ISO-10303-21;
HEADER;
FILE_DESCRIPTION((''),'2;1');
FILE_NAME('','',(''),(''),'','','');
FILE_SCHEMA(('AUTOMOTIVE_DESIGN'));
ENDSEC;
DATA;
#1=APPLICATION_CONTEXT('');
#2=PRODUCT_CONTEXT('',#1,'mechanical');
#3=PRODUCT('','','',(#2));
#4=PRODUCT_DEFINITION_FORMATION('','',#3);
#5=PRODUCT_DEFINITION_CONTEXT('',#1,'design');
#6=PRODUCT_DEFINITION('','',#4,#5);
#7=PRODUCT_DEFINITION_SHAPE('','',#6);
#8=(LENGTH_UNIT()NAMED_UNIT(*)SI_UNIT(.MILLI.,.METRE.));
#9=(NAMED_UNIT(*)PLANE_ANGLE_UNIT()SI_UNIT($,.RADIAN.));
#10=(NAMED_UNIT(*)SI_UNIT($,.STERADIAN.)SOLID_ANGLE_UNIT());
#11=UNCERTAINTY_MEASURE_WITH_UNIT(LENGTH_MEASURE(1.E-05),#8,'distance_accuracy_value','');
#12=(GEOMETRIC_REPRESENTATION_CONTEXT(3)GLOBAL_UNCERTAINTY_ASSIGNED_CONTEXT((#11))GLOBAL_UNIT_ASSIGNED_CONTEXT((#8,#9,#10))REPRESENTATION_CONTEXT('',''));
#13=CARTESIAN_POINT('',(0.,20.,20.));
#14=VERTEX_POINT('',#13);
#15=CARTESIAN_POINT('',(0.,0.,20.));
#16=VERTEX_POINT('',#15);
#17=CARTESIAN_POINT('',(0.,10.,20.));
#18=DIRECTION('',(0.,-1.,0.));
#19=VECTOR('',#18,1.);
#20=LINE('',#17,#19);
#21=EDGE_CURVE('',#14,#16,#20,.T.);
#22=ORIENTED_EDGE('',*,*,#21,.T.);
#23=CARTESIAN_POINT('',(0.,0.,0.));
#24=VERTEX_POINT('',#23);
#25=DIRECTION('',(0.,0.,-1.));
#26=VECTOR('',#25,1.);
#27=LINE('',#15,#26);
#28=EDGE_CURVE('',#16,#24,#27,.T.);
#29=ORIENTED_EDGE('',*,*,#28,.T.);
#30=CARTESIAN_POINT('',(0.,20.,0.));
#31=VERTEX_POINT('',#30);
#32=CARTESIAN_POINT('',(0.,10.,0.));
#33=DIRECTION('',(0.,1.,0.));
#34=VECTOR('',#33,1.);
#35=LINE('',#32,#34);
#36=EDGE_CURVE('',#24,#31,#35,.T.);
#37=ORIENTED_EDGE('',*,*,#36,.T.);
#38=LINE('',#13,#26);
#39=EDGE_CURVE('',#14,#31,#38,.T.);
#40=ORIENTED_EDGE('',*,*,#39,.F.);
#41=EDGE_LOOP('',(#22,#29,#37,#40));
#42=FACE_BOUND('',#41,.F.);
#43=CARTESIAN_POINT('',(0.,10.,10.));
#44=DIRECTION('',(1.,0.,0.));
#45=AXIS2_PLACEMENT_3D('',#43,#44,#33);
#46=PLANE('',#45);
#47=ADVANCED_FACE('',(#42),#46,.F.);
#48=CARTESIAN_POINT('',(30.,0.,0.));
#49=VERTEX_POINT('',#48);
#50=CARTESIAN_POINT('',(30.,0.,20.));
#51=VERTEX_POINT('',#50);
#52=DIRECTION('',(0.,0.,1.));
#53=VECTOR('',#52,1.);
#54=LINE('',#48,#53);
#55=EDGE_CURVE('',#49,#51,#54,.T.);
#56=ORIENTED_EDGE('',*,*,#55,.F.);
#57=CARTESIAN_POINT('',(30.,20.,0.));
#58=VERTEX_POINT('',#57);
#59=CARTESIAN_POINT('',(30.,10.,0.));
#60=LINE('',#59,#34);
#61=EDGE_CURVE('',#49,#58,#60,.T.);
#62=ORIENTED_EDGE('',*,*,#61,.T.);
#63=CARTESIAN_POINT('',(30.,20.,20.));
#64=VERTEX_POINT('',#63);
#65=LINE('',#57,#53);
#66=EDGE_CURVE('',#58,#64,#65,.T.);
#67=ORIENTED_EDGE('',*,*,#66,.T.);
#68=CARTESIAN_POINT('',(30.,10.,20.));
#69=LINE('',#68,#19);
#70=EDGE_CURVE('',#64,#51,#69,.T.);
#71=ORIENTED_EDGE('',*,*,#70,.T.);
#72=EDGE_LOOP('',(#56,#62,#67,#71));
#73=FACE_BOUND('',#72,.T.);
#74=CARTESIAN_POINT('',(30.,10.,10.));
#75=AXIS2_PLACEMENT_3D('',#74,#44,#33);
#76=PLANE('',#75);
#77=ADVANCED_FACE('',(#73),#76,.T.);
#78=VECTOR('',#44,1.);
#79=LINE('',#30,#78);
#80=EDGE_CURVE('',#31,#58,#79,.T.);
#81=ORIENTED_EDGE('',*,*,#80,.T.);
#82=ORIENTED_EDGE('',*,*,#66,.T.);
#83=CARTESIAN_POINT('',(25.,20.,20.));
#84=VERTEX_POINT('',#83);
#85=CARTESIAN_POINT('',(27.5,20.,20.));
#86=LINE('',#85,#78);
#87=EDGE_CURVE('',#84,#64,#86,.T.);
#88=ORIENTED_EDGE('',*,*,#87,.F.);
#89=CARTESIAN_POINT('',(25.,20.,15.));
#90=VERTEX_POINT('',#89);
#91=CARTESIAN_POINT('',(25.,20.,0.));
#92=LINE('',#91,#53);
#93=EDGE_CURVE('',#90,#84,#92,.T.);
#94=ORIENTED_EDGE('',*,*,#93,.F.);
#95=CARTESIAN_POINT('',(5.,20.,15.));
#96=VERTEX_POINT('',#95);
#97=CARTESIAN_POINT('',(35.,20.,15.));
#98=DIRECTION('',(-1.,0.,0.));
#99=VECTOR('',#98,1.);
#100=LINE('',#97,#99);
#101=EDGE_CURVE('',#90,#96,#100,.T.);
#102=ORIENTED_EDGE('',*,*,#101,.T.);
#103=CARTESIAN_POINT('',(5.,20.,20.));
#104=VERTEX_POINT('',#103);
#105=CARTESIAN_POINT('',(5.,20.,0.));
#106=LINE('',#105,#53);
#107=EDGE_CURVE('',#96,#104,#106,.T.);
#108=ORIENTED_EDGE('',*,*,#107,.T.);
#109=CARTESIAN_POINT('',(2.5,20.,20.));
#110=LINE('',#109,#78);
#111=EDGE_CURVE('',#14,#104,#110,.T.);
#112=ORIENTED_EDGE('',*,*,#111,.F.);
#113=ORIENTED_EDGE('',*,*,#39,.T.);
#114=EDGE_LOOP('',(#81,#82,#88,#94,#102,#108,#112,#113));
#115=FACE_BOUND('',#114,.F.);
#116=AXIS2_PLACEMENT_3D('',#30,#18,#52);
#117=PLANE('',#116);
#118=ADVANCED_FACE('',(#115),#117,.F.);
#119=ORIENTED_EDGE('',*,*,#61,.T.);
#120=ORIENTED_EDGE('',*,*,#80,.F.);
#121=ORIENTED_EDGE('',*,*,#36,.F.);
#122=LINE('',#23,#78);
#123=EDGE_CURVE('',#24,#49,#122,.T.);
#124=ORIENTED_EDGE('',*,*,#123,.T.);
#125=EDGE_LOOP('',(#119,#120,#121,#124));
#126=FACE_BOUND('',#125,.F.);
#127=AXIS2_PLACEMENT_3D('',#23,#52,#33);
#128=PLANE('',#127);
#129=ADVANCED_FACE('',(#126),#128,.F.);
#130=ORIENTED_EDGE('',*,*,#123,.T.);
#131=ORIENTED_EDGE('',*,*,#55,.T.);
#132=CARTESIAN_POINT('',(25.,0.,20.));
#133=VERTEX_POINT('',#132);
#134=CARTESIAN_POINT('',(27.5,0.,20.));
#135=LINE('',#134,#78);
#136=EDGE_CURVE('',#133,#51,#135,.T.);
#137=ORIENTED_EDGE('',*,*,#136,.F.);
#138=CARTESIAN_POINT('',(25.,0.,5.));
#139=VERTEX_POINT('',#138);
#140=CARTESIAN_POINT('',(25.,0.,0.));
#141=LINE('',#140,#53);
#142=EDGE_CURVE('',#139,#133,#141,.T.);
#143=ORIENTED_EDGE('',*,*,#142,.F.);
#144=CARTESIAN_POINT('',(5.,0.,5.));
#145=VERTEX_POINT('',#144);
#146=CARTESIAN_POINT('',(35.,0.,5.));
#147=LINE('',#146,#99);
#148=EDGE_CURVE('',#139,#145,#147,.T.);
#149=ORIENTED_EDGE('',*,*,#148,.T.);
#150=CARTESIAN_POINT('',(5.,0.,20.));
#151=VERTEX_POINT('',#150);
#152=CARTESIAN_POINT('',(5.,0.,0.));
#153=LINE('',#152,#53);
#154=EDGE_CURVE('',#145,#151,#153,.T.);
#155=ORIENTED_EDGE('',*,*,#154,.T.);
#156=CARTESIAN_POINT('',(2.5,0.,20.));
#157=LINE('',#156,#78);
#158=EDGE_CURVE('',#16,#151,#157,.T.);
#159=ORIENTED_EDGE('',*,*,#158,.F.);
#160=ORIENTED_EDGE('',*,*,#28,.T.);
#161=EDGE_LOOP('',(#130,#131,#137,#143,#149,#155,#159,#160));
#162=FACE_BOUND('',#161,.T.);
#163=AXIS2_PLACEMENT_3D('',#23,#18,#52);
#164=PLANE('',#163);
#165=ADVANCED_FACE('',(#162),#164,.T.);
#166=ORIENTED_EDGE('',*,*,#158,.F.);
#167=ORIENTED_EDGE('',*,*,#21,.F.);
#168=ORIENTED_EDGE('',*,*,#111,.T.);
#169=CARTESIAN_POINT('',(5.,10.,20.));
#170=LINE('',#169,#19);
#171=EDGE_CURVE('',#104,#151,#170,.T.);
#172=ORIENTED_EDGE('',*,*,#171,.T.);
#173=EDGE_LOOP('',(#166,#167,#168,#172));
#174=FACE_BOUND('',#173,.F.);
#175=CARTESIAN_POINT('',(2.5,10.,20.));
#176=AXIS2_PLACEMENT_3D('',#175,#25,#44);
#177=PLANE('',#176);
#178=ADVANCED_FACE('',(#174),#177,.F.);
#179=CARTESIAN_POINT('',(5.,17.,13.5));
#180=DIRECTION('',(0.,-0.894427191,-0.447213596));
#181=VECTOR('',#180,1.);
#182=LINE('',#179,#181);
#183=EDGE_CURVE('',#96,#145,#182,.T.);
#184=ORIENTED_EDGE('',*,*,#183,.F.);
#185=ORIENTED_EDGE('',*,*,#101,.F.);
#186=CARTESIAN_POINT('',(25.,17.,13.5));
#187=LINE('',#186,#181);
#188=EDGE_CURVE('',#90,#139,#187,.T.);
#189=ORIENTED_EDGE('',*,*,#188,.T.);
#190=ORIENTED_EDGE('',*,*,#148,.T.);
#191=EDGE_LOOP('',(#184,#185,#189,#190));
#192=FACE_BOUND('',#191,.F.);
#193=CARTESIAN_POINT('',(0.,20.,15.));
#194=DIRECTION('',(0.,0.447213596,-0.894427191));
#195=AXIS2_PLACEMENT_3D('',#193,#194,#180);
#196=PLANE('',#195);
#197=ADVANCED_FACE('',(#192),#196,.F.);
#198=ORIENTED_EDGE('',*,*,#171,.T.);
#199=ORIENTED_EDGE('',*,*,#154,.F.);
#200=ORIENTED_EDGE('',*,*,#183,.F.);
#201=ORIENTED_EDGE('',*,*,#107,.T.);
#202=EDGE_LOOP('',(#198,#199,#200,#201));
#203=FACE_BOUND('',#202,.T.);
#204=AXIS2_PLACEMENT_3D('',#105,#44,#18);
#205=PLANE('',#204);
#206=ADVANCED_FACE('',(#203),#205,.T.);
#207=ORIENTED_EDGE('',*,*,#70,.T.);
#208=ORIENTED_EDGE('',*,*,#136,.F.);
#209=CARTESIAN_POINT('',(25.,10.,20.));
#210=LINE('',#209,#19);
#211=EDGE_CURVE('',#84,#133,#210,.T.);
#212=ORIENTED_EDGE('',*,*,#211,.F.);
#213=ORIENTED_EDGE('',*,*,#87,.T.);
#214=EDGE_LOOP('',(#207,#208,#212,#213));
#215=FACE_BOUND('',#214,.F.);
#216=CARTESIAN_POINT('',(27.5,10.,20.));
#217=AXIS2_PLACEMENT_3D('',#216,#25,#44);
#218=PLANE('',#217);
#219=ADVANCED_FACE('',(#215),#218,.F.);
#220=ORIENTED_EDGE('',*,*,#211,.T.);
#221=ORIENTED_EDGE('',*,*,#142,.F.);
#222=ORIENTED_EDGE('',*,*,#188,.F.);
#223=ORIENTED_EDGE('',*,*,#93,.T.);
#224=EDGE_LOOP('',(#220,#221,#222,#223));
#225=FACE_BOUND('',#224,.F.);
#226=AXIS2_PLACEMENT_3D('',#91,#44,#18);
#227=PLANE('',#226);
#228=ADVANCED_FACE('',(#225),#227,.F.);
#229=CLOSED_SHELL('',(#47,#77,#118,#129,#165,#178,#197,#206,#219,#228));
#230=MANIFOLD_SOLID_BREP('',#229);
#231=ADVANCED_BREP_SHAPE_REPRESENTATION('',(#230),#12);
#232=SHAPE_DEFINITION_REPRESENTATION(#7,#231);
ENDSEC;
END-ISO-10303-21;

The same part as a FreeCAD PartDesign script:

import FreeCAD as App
import Part
import Sketcher

V = App.Vector

doc = App.newDocument("Part")
params = doc.addObject("Spreadsheet::Sheet", "Params")
for row, (alias, value) in enumerate([
    ("sketch1_width", "20 mm"),
    ("pad1_length", "30 mm"),
    ("sketch2_width", "20 mm"),
    ("sketch2_height", "5 mm"),
    ("sketch2_height2", "15 mm"),
    ("pocket1_length", "70 mm"),
    ("sketch3_width", "5 mm"),
    ("sketch3_height", "20 mm"),
    ("pad2_length", "20 mm"),
    ("sketch4_width", "5 mm"),
    ("sketch4_height", "20 mm"),
    ("pad3_length", "20 mm"),
], start=1):
    params.set(f"A{row}", alias)
    params.set(f"B{row}", "=" + value)
    params.setAlias(f"B{row}", alias)

body = doc.addObject("PartDesign::Body", "Body")

# Sketch on YZ plane
sketch1 = doc.addObject("Sketcher::SketchObject", "Sketch")
body.addObject(sketch1)
sketch1.AttachmentSupport = (doc.YZ_Plane, [""])
sketch1.MapMode = "FlatFace"
sketch1.addGeometry([
    Part.LineSegment(V(0, 20, 0), V(0, 0, 0)),
    Part.LineSegment(V(0, 0, 0), V(20, 0, 0)),
    Part.LineSegment(V(20, 0, 0), V(20, 20, 0)),
    Part.LineSegment(V(20, 20, 0), V(0, 20, 0)),
], False)
sketch1.addConstraint([
    Sketcher.Constraint("Coincident", 0, 2, 1, 1),
    Sketcher.Constraint("Coincident", 1, 2, 2, 1),
    Sketcher.Constraint("Coincident", 2, 2, 3, 1),
    Sketcher.Constraint("Coincident", 3, 2, 0, 1),
    Sketcher.Constraint("Vertical", 0),
    Sketcher.Constraint("Horizontal", 1),
    Sketcher.Constraint("Vertical", 2),
    Sketcher.Constraint("Horizontal", 3),
    Sketcher.Constraint("Coincident", 0, 2, -1, 1),
    Sketcher.Constraint("Equal", 3, 0),
    Sketcher.Constraint("DistanceX", 1, 1, 1, 2, 20.0),
])
sketch1.setExpression("Constraints[10]", "Params.sketch1_width")
pad1 = doc.addObject("PartDesign::Pad", "Pad")
body.addObject(pad1)
pad1.Profile = sketch1
pad1.setExpression("Length", "Params.pad1_length")

# Sketch on YZ plane
sketch2 = doc.addObject("Sketcher::SketchObject", "Sketch001")
body.addObject(sketch2)
sketch2.AttachmentSupport = (doc.YZ_Plane, [""])
sketch2.MapMode = "FlatFace"
sketch2.addGeometry([
    Part.LineSegment(V(20, 20, 0), V(20, 15, 0)),
    Part.LineSegment(V(20, 15, 0), V(0, 5, 0)),
    Part.LineSegment(V(0, 5, 0), V(0, 20, 0)),
    Part.LineSegment(V(0, 20, 0), V(20, 20, 0)),
], False)
sketch2.addConstraint([
    Sketcher.Constraint("Coincident", 0, 2, 1, 1),
    Sketcher.Constraint("Coincident", 1, 2, 2, 1),
    Sketcher.Constraint("Coincident", 2, 2, 3, 1),
    Sketcher.Constraint("Coincident", 3, 2, 0, 1),
    Sketcher.Constraint("Vertical", 0),
    Sketcher.Constraint("Vertical", 2),
    Sketcher.Constraint("Horizontal", 3),
    Sketcher.Constraint("PointOnObject", 1, 2, -2),
    Sketcher.Constraint("DistanceX", 3, 1, 3, 2, 20.0),
    Sketcher.Constraint("DistanceY", 0, 2, 0, 1, 5.0),
    Sketcher.Constraint("DistanceY", 2, 1, 2, 2, 15.0),
    Sketcher.Constraint("DistanceY", -1, 1, 0, 2, 15.0),
])
sketch2.setExpression("Constraints[8]", "Params.sketch2_width")
sketch2.setExpression("Constraints[9]", "Params.sketch2_height")
sketch2.setExpression("Constraints[10]", "Params.sketch2_height2")
pocket1 = doc.addObject("PartDesign::Pocket", "Pocket")
body.addObject(pocket1)
pocket1.Profile = sketch2
pocket1.setExpression("Length", "Params.pocket1_length")
pocket1.Midplane = True

# Sketch on XY plane
sketch3 = doc.addObject("Sketcher::SketchObject", "Sketch002")
body.addObject(sketch3)
sketch3.AttachmentSupport = (doc.XY_Plane, [""])
sketch3.MapMode = "FlatFace"
sketch3.addGeometry([
    Part.LineSegment(V(0, 0, 0), V(0, 20, 0)),
    Part.LineSegment(V(0, 20, 0), V(5, 20, 0)),
    Part.LineSegment(V(5, 20, 0), V(5, 0, 0)),
    Part.LineSegment(V(5, 0, 0), V(0, 0, 0)),
], False)
sketch3.addConstraint([
    Sketcher.Constraint("Coincident", 0, 2, 1, 1),
    Sketcher.Constraint("Coincident", 1, 2, 2, 1),
    Sketcher.Constraint("Coincident", 2, 2, 3, 1),
    Sketcher.Constraint("Coincident", 3, 2, 0, 1),
    Sketcher.Constraint("Vertical", 0),
    Sketcher.Constraint("Horizontal", 1),
    Sketcher.Constraint("Vertical", 2),
    Sketcher.Constraint("Horizontal", 3),
    Sketcher.Constraint("Coincident", 3, 2, -1, 1),
    Sketcher.Constraint("DistanceX", 1, 1, 1, 2, 5.0),
    Sketcher.Constraint("DistanceY", 0, 1, 0, 2, 20.0),
])
sketch3.setExpression("Constraints[9]", "Params.sketch3_width")
sketch3.setExpression("Constraints[10]", "Params.sketch3_height")
pad2 = doc.addObject("PartDesign::Pad", "Pad001")
body.addObject(pad2)
pad2.Profile = sketch3
pad2.setExpression("Length", "Params.pad2_length")

# Sketch on XY plane
sketch4 = doc.addObject("Sketcher::SketchObject", "Sketch003")
body.addObject(sketch4)
sketch4.AttachmentSupport = (doc.XY_Plane, [""])
sketch4.MapMode = "FlatFace"
sketch4.addGeometry([
    Part.LineSegment(V(25, 0, 0), V(25, 20, 0)),
    Part.LineSegment(V(25, 20, 0), V(30, 20, 0)),
    Part.LineSegment(V(30, 20, 0), V(30, 0, 0)),
    Part.LineSegment(V(30, 0, 0), V(25, 0, 0)),
], False)
sketch4.addConstraint([
    Sketcher.Constraint("Coincident", 0, 2, 1, 1),
    Sketcher.Constraint("Coincident", 1, 2, 2, 1),
    Sketcher.Constraint("Coincident", 2, 2, 3, 1),
    Sketcher.Constraint("Coincident", 3, 2, 0, 1),
    Sketcher.Constraint("Vertical", 0),
    Sketcher.Constraint("Horizontal", 1),
    Sketcher.Constraint("Vertical", 2),
    Sketcher.Constraint("Horizontal", 3),
    Sketcher.Constraint("PointOnObject", 2, 2, -1),
    Sketcher.Constraint("DistanceX", 1, 1, 1, 2, 5.0),
    Sketcher.Constraint("DistanceY", 0, 1, 0, 2, 20.0),
    Sketcher.Constraint("DistanceX", -1, 1, 0, 2, 25.0),
])
sketch4.setExpression("Constraints[9]", "Params.sketch4_width")
sketch4.setExpression("Constraints[10]", "Params.sketch4_height")
pad3 = doc.addObject("PartDesign::Pad", "Pad002")
body.addObject(pad3)
pad3.Profile = sketch4
pad3.setExpression("Length", "Params.pad3_length")

doc.recompute()
